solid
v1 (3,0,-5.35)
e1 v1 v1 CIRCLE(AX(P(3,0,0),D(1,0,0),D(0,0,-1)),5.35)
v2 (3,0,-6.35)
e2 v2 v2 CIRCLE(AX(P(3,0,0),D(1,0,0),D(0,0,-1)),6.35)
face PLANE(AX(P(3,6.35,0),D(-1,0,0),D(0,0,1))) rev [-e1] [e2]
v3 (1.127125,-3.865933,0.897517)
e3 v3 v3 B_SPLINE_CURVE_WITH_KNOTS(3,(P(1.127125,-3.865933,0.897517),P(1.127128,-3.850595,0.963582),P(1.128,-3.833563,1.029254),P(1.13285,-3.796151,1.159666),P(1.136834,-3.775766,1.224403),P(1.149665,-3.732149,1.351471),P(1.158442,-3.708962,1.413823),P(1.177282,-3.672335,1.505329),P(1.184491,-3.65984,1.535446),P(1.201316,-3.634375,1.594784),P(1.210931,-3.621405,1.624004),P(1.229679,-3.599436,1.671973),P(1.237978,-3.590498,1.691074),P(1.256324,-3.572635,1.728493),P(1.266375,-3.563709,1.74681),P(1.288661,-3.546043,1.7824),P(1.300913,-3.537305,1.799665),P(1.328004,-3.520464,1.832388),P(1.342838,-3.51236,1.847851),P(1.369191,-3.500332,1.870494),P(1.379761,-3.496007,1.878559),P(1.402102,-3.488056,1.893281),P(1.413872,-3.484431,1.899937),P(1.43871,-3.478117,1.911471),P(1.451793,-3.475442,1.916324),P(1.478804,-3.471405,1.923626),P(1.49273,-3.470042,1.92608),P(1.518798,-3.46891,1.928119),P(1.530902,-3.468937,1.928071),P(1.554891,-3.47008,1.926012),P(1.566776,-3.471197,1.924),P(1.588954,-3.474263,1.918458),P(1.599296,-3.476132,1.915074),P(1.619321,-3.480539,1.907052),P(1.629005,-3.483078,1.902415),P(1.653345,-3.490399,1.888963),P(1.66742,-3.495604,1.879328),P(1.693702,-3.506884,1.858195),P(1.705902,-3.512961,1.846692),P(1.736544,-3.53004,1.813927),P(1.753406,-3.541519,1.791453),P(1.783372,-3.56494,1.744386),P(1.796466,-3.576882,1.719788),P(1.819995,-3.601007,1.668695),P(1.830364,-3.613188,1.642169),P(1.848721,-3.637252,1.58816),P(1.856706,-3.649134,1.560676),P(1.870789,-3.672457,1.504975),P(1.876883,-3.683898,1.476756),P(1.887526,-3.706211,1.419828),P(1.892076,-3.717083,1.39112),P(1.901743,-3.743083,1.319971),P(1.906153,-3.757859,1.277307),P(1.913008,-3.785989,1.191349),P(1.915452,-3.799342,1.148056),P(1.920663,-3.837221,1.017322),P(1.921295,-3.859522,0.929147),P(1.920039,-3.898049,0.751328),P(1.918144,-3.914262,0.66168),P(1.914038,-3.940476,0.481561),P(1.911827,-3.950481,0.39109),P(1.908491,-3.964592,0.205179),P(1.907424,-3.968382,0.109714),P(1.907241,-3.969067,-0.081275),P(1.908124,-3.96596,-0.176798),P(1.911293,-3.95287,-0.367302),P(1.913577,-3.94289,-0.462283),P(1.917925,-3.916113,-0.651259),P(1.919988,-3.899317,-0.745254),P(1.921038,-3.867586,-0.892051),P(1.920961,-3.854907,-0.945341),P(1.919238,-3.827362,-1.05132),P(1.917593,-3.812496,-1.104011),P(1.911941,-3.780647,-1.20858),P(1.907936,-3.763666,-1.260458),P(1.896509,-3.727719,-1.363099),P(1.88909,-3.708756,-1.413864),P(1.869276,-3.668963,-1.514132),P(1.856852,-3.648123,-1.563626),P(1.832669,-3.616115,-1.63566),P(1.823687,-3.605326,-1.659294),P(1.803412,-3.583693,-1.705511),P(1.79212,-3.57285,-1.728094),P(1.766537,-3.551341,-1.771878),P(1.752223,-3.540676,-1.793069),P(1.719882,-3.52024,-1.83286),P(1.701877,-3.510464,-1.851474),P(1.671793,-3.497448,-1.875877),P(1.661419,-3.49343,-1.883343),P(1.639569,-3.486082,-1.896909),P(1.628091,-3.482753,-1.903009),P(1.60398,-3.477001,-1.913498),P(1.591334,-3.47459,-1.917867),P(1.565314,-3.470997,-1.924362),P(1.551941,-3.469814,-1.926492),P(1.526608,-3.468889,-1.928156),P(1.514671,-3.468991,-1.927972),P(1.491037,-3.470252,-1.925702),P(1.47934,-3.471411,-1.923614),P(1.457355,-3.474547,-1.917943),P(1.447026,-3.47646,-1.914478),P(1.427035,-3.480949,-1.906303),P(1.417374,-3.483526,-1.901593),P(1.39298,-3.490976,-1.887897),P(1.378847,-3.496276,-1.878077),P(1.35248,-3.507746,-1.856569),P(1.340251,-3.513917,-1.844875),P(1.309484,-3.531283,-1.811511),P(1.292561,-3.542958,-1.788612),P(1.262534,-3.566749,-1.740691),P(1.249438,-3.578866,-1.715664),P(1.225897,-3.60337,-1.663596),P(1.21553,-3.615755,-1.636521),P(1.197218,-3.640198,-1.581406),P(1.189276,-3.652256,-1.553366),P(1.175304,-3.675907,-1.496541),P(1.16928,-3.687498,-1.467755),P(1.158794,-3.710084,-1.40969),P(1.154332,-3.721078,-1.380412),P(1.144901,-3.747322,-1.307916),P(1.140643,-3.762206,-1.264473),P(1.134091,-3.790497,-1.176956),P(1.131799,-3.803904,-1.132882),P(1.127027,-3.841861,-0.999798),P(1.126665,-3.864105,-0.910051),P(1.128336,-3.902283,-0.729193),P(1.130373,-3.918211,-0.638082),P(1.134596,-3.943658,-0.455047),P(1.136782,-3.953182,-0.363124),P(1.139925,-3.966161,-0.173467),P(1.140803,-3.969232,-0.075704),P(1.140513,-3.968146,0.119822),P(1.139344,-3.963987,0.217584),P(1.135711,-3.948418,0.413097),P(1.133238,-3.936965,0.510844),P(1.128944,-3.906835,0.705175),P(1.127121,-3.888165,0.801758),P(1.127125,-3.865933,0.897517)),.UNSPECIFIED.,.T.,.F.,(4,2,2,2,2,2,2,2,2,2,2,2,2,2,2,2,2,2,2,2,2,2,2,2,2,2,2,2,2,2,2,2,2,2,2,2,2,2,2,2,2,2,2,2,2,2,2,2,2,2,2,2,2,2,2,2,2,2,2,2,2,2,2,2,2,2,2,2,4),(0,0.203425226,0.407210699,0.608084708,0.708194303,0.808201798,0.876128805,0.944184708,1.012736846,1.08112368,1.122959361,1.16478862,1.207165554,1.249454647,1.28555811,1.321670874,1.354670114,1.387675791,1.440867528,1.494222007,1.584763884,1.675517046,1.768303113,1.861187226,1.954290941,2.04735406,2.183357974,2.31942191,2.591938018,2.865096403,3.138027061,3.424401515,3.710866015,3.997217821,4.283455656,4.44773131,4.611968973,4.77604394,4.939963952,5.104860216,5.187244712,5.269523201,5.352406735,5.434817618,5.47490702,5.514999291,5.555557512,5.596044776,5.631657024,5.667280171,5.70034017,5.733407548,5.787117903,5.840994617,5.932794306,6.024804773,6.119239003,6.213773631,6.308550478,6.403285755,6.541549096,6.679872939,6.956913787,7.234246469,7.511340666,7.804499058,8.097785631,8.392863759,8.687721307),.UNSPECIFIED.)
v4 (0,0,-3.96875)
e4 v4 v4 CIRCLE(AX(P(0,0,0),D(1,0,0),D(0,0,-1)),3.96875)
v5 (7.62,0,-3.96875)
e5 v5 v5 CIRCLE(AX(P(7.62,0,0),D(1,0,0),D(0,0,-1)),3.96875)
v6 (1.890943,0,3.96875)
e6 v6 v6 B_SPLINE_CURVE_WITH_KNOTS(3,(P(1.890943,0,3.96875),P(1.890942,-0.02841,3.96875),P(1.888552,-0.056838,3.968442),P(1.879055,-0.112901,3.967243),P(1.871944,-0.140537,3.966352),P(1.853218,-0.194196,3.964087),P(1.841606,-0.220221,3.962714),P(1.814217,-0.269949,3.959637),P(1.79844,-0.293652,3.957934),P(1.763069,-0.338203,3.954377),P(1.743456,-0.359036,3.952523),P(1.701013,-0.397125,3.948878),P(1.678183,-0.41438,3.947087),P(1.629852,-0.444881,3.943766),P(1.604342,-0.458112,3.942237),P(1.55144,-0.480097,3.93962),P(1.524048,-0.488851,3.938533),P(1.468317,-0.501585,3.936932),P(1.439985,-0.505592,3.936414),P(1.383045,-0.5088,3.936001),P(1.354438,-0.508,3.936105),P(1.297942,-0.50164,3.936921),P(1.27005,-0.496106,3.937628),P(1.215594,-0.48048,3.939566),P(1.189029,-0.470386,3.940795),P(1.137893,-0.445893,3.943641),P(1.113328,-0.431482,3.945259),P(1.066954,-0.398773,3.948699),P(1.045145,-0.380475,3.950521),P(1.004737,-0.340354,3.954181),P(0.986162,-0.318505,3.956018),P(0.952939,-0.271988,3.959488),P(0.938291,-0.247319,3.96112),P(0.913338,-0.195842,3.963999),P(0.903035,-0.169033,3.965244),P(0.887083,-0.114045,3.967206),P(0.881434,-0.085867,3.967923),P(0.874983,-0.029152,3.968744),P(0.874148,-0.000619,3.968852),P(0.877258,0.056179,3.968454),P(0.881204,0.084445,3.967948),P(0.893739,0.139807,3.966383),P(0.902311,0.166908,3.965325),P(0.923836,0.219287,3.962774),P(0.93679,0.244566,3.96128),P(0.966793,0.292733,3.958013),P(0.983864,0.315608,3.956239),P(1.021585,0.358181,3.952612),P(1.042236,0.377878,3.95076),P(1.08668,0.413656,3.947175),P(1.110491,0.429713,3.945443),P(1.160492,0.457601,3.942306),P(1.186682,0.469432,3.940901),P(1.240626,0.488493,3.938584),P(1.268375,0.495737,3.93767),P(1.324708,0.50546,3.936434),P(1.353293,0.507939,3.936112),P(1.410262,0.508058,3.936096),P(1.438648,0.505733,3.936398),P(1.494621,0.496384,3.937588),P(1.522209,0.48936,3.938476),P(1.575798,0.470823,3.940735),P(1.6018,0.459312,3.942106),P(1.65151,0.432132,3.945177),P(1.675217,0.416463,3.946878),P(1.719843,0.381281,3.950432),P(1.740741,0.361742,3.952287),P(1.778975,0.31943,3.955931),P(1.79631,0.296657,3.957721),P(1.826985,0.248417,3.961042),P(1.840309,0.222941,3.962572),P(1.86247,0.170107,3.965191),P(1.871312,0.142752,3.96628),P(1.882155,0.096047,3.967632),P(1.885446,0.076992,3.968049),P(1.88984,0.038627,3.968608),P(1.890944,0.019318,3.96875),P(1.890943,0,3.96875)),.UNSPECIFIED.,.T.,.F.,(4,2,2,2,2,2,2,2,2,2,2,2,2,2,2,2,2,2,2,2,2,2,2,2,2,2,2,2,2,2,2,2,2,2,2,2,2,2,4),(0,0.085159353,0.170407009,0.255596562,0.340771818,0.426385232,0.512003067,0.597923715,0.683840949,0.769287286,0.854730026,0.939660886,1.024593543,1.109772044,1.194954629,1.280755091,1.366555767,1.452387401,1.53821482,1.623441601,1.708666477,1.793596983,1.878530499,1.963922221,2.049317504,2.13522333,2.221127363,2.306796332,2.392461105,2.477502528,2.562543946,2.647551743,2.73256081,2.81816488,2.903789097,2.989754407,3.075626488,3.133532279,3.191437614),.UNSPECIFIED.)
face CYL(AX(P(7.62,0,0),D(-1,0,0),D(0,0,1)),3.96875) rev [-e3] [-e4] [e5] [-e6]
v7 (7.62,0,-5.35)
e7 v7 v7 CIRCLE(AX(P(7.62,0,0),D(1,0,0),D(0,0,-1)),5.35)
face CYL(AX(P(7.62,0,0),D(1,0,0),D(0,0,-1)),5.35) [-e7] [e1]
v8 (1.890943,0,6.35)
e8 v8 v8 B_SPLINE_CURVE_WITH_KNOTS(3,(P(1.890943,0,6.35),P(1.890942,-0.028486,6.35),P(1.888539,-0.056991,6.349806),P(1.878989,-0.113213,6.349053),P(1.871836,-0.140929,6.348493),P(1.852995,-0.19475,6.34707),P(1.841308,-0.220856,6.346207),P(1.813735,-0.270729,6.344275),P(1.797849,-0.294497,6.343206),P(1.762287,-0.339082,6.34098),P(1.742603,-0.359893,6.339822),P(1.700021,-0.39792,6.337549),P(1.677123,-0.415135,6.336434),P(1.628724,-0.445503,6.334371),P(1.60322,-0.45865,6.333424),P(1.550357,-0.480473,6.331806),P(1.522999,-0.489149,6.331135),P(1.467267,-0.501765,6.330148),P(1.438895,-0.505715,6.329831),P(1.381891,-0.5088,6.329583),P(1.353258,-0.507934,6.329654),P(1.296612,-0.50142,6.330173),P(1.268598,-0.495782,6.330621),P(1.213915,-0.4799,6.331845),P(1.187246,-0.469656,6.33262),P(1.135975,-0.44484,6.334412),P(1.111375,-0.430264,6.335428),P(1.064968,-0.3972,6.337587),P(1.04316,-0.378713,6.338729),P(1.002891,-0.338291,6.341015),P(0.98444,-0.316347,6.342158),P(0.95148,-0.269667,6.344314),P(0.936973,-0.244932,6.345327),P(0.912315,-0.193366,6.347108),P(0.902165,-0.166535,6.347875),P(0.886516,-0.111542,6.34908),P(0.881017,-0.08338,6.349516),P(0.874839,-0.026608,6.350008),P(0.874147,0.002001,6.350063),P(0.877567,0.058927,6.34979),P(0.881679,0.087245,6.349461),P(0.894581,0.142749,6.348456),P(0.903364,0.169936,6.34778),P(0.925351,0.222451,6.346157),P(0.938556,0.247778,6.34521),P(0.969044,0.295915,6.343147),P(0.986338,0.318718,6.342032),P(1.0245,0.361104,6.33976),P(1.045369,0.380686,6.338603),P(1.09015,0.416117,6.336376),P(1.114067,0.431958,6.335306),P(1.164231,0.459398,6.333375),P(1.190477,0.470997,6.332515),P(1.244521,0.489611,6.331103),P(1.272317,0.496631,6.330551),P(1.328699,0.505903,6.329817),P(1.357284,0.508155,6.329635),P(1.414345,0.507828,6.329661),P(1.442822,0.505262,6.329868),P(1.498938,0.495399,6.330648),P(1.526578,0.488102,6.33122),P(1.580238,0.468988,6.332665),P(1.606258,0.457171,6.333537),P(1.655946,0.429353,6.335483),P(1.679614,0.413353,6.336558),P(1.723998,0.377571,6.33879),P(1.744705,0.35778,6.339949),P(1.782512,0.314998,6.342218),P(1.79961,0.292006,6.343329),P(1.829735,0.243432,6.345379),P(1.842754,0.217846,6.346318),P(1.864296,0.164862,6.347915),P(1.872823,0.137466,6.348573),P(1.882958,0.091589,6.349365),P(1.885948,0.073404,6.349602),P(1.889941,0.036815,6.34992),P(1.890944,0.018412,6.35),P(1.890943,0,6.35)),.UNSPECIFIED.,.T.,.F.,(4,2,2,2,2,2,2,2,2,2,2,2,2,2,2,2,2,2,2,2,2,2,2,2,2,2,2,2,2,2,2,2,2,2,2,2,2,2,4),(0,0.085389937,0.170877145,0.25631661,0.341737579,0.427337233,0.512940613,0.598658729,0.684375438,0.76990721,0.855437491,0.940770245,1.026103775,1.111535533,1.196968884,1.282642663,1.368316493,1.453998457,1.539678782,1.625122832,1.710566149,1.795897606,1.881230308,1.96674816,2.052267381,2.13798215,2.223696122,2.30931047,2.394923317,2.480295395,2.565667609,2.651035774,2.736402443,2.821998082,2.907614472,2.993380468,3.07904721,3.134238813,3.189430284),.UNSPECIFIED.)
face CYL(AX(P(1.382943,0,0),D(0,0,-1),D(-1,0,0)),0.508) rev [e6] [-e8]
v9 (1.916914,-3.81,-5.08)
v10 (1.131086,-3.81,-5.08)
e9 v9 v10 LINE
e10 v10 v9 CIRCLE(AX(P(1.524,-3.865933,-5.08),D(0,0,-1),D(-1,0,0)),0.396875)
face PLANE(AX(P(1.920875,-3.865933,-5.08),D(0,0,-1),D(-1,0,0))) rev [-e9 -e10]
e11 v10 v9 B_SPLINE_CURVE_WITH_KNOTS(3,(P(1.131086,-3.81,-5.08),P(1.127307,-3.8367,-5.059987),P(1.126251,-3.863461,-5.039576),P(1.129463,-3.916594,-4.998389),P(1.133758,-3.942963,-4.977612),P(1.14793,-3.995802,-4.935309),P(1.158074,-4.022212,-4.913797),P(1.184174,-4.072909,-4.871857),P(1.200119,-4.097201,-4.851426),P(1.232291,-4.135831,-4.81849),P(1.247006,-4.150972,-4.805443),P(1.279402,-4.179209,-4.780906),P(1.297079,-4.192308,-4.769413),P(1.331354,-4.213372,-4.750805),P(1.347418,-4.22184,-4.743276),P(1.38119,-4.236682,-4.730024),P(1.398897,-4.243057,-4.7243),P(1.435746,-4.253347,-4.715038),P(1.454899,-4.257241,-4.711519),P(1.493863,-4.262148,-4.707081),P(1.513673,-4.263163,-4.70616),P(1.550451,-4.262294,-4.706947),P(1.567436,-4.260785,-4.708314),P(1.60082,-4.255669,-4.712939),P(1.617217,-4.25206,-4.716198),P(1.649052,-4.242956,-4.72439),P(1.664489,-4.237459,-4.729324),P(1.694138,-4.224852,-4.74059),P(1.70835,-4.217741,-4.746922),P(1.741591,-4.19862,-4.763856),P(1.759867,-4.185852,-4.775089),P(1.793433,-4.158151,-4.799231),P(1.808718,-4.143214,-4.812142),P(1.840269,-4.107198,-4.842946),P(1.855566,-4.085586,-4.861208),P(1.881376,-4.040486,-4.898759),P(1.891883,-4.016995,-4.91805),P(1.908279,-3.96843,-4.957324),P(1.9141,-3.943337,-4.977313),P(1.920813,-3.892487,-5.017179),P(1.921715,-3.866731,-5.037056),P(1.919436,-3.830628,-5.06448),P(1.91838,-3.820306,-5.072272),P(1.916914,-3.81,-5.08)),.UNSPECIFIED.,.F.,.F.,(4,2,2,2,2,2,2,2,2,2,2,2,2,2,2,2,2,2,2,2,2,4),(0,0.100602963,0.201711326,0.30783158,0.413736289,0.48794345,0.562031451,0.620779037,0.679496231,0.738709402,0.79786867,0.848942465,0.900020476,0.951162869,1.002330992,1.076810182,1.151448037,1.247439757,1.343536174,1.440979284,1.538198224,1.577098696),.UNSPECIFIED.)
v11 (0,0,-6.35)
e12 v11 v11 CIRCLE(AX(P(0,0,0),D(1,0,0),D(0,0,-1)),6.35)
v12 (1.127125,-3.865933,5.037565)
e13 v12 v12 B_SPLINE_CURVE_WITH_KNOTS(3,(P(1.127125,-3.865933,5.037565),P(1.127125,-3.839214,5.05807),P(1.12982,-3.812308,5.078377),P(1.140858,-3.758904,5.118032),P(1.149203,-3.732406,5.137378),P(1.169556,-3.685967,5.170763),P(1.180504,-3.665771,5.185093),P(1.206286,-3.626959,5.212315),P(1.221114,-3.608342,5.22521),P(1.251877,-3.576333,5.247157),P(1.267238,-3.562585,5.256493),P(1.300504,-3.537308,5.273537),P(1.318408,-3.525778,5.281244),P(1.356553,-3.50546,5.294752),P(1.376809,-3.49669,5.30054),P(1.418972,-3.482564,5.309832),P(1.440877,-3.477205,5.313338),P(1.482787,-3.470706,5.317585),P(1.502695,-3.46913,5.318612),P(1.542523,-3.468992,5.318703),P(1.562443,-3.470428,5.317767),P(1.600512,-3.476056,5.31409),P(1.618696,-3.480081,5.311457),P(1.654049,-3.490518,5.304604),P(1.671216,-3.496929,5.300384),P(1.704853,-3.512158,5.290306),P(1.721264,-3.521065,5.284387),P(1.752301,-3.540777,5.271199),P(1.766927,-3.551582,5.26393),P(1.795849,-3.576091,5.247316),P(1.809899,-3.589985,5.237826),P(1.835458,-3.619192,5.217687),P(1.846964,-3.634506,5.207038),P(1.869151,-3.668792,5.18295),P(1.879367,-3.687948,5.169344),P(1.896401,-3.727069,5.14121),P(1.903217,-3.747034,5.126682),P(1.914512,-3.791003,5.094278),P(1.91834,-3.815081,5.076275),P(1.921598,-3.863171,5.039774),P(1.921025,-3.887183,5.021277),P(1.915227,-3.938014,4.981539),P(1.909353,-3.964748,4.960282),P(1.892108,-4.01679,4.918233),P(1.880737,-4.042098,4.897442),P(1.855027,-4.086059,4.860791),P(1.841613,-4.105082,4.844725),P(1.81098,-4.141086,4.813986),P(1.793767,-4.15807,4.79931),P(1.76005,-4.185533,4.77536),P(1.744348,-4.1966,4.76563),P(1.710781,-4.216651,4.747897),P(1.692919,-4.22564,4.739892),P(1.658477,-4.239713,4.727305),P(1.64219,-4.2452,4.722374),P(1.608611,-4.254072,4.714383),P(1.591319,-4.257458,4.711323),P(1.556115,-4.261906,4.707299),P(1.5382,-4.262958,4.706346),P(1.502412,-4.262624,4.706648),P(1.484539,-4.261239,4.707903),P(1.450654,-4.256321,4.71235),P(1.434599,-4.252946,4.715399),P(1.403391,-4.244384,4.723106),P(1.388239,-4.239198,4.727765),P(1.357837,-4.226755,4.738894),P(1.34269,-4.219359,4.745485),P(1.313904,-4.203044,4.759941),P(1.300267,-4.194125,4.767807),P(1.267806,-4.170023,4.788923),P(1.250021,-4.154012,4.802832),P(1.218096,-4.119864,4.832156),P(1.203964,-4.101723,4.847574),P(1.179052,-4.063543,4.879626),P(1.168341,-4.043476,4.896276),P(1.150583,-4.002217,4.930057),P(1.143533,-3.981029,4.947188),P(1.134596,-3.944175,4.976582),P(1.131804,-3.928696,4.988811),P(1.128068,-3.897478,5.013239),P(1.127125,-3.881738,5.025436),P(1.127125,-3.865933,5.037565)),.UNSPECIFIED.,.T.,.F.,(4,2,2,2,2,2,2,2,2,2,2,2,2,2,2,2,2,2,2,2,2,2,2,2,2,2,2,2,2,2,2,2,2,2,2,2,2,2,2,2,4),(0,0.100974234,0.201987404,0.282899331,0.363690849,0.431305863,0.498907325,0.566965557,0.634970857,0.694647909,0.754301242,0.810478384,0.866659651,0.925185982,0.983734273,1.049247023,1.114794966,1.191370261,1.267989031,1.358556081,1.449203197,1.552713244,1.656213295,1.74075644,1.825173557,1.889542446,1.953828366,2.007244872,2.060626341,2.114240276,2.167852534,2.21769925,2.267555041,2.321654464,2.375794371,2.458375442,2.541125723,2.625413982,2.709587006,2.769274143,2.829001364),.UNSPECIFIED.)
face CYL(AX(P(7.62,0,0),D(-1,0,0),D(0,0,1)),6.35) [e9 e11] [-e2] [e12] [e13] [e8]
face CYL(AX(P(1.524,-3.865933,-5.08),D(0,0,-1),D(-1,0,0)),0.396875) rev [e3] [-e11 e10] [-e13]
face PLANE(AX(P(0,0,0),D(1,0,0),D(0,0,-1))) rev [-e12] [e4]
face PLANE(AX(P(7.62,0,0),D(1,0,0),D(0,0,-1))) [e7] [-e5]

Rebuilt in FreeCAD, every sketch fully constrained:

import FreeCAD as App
import Part
import Sketcher
from FreeCAD import Vector
Q = App.Units.Quantity


def add_polygon(sketch, points):
    """Adds a closed chain of lines whose ends are joined by coincident constraints."""
    first, n = sketch.GeometryCount, len(points)
    for a, b in zip(points, points[1:] + points[:1]):
        sketch.addGeometry(Part.LineSegment(App.Vector(*a, 0), App.Vector(*b, 0)), False)
    for i in range(n):
        sketch.addConstraint(Sketcher.Constraint("Coincident", first + i, 2, first + (i + 1) % n, 1))

doc = App.newDocument("Part")
body = doc.addObject("PartDesign::Body", "Body")

# Sketch on YZ plane
sketch1 = body.newObject("Sketcher::SketchObject", "Sketch")
sketch1.AttachmentSupport = (doc.getObject("YZ_Plane"), [""])
sketch1.MapMode = "FlatFace"
sketch1.addGeometry(Part.Circle(Vector(0, 0, 0), Vector(0, 0, 1), 6.3), False)
sketch1.addGeometry(Part.Circle(Vector(0, 0, 0), Vector(0, 0, 1), 4), False)
sketch1.addConstraint(Sketcher.Constraint("Coincident", 0, 3, -1, 1))
sketch1.addConstraint(Sketcher.Constraint("Coincident", 1, 3, -1, 1))
sketch1.addConstraint(Sketcher.Constraint("Diameter", 0, Q("0.5 in")))
sketch1.addConstraint(Sketcher.Constraint("Diameter", 1, Q("0.3125 in")))
pad1 = body.newObject("PartDesign::Pad", "Pad")
pad1.Profile = sketch1
pad1.Length = Q("0.3 in")

# Sketch on XY plane
sketch2 = body.newObject("Sketcher::SketchObject", "Sketch001")
sketch2.AttachmentSupport = (doc.getObject("XY_Plane"), [""])
sketch2.MapMode = "FlatFace"
add_polygon(sketch2, [(3, 6.3), (3, 5.3), (7.6, 5.3), (7.6, 6.3)])  # lines 0-3
sketch2.addConstraint(Sketcher.Constraint("Vertical", 0))
sketch2.addConstraint(Sketcher.Constraint("Horizontal", 1))
sketch2.addConstraint(Sketcher.Constraint("Vertical", 2))
sketch2.addConstraint(Sketcher.Constraint("Horizontal", 3))
sketch2.addConstraint(Sketcher.Constraint("DistanceX", -1, 1, 1, 2, Q("0.3 in")))
sketch2.addConstraint(Sketcher.Constraint("DistanceY", -1, 1, 2, 2, Q("0.25 in")))
sketch2.addConstraint(Sketcher.Constraint("DistanceX", 1, 1, 1, 2, 4.62))
sketch2.addConstraint(Sketcher.Constraint("DistanceY", 0, 2, 0, 1, 1.0))
groove = body.newObject("PartDesign::Groove", "Groove")
groove.Profile = sketch2
groove.ReferenceAxis = (sketch2, ["H_Axis"])
groove.Angle = 360

# Sketch on YZ plane
sketch3 = body.newObject("Sketcher::SketchObject", "Sketch002")
sketch3.AttachmentSupport = (doc.getObject("YZ_Plane"), [""])
sketch3.MapMode = "FlatFace"
sketch3.AttachmentOffset = App.Placement(Vector(0, 0, 1.382943), App.Rotation())
add_polygon(sketch3, [(0, 25.7), (0, 0), (0.5, 0), (0.5, 25.4)])  # lines 0-3
sketch3.addConstraint(Sketcher.Constraint("Vertical", 0))
sketch3.addConstraint(Sketcher.Constraint("Horizontal", 1))
sketch3.addConstraint(Sketcher.Constraint("Vertical", 2))
sketch3.addConstraint(Sketcher.Constraint("Coincident", 0, 2, -1, 1))
sketch3.addConstraint(Sketcher.Constraint("DistanceY", 2, 1, 2, 2, Q("1 in")))
sketch3.addConstraint(Sketcher.Constraint("Angle", 3, Q("149 deg")))
sketch3.addConstraint(Sketcher.Constraint("DistanceX", 1, 1, 1, 2, Q("0.02 in")))
groove2 = body.newObject("PartDesign::Groove", "Groove001")
groove2.Profile = sketch3
groove2.ReferenceAxis = (sketch3, ["V_Axis"])
groove2.Angle = 360

# Sketch on YZ plane
sketch4 = body.newObject("Sketcher::SketchObject", "Sketch003")
sketch4.AttachmentSupport = (doc.getObject("YZ_Plane"), [""])
sketch4.MapMode = "FlatFace"
sketch4.AttachmentOffset = App.Placement(Vector(0, 0, 0.06 * 25.4), App.Rotation())
add_polygon(sketch4, [(-3.87, 65.26), (-3.87, -5.08), (-3.47, -5.08), (-3.47, 65.02)])  # lines 0-3
sketch4.addGeometry(Part.LineSegment(Vector(-3.87, -5.08, 0), Vector(-3.87, 65.26, 0)), True)  # axis
sketch4.addConstraint(Sketcher.Constraint("Vertical", 0))
sketch4.addConstraint(Sketcher.Constraint("Horizontal", 1))
sketch4.addConstraint(Sketcher.Constraint("Vertical", 2))
sketch4.addConstraint(Sketcher.Constraint("Vertical", 4))
sketch4.addConstraint(Sketcher.Constraint("Coincident", 4, 1, 0, 2))
sketch4.addConstraint(Sketcher.Constraint("Equal", 0, 4))
sketch4.addConstraint(Sketcher.Constraint("Angle", 3, Q("149 deg")))
sketch4.addConstraint(Sketcher.Constraint("DistanceY", 2, 1, 2, 2, Q("2.76 in")))
sketch4.addConstraint(Sketcher.Constraint("DistanceY", 0, 2, -1, 1, Q("0.2 in")))
sketch4.addConstraint(Sketcher.Constraint("DistanceX", 1, 1, 1, 2, Q("0.015625 in")))
sketch4.addConstraint(Sketcher.Constraint("DistanceX", 1, 2, -1, 1, 3.469058))
groove3 = body.newObject("PartDesign::Groove", "Groove002")
groove3.Profile = sketch4
groove3.ReferenceAxis = (sketch4, ["Axis0"])
groove3.Angle = 360

doc.recompute()
